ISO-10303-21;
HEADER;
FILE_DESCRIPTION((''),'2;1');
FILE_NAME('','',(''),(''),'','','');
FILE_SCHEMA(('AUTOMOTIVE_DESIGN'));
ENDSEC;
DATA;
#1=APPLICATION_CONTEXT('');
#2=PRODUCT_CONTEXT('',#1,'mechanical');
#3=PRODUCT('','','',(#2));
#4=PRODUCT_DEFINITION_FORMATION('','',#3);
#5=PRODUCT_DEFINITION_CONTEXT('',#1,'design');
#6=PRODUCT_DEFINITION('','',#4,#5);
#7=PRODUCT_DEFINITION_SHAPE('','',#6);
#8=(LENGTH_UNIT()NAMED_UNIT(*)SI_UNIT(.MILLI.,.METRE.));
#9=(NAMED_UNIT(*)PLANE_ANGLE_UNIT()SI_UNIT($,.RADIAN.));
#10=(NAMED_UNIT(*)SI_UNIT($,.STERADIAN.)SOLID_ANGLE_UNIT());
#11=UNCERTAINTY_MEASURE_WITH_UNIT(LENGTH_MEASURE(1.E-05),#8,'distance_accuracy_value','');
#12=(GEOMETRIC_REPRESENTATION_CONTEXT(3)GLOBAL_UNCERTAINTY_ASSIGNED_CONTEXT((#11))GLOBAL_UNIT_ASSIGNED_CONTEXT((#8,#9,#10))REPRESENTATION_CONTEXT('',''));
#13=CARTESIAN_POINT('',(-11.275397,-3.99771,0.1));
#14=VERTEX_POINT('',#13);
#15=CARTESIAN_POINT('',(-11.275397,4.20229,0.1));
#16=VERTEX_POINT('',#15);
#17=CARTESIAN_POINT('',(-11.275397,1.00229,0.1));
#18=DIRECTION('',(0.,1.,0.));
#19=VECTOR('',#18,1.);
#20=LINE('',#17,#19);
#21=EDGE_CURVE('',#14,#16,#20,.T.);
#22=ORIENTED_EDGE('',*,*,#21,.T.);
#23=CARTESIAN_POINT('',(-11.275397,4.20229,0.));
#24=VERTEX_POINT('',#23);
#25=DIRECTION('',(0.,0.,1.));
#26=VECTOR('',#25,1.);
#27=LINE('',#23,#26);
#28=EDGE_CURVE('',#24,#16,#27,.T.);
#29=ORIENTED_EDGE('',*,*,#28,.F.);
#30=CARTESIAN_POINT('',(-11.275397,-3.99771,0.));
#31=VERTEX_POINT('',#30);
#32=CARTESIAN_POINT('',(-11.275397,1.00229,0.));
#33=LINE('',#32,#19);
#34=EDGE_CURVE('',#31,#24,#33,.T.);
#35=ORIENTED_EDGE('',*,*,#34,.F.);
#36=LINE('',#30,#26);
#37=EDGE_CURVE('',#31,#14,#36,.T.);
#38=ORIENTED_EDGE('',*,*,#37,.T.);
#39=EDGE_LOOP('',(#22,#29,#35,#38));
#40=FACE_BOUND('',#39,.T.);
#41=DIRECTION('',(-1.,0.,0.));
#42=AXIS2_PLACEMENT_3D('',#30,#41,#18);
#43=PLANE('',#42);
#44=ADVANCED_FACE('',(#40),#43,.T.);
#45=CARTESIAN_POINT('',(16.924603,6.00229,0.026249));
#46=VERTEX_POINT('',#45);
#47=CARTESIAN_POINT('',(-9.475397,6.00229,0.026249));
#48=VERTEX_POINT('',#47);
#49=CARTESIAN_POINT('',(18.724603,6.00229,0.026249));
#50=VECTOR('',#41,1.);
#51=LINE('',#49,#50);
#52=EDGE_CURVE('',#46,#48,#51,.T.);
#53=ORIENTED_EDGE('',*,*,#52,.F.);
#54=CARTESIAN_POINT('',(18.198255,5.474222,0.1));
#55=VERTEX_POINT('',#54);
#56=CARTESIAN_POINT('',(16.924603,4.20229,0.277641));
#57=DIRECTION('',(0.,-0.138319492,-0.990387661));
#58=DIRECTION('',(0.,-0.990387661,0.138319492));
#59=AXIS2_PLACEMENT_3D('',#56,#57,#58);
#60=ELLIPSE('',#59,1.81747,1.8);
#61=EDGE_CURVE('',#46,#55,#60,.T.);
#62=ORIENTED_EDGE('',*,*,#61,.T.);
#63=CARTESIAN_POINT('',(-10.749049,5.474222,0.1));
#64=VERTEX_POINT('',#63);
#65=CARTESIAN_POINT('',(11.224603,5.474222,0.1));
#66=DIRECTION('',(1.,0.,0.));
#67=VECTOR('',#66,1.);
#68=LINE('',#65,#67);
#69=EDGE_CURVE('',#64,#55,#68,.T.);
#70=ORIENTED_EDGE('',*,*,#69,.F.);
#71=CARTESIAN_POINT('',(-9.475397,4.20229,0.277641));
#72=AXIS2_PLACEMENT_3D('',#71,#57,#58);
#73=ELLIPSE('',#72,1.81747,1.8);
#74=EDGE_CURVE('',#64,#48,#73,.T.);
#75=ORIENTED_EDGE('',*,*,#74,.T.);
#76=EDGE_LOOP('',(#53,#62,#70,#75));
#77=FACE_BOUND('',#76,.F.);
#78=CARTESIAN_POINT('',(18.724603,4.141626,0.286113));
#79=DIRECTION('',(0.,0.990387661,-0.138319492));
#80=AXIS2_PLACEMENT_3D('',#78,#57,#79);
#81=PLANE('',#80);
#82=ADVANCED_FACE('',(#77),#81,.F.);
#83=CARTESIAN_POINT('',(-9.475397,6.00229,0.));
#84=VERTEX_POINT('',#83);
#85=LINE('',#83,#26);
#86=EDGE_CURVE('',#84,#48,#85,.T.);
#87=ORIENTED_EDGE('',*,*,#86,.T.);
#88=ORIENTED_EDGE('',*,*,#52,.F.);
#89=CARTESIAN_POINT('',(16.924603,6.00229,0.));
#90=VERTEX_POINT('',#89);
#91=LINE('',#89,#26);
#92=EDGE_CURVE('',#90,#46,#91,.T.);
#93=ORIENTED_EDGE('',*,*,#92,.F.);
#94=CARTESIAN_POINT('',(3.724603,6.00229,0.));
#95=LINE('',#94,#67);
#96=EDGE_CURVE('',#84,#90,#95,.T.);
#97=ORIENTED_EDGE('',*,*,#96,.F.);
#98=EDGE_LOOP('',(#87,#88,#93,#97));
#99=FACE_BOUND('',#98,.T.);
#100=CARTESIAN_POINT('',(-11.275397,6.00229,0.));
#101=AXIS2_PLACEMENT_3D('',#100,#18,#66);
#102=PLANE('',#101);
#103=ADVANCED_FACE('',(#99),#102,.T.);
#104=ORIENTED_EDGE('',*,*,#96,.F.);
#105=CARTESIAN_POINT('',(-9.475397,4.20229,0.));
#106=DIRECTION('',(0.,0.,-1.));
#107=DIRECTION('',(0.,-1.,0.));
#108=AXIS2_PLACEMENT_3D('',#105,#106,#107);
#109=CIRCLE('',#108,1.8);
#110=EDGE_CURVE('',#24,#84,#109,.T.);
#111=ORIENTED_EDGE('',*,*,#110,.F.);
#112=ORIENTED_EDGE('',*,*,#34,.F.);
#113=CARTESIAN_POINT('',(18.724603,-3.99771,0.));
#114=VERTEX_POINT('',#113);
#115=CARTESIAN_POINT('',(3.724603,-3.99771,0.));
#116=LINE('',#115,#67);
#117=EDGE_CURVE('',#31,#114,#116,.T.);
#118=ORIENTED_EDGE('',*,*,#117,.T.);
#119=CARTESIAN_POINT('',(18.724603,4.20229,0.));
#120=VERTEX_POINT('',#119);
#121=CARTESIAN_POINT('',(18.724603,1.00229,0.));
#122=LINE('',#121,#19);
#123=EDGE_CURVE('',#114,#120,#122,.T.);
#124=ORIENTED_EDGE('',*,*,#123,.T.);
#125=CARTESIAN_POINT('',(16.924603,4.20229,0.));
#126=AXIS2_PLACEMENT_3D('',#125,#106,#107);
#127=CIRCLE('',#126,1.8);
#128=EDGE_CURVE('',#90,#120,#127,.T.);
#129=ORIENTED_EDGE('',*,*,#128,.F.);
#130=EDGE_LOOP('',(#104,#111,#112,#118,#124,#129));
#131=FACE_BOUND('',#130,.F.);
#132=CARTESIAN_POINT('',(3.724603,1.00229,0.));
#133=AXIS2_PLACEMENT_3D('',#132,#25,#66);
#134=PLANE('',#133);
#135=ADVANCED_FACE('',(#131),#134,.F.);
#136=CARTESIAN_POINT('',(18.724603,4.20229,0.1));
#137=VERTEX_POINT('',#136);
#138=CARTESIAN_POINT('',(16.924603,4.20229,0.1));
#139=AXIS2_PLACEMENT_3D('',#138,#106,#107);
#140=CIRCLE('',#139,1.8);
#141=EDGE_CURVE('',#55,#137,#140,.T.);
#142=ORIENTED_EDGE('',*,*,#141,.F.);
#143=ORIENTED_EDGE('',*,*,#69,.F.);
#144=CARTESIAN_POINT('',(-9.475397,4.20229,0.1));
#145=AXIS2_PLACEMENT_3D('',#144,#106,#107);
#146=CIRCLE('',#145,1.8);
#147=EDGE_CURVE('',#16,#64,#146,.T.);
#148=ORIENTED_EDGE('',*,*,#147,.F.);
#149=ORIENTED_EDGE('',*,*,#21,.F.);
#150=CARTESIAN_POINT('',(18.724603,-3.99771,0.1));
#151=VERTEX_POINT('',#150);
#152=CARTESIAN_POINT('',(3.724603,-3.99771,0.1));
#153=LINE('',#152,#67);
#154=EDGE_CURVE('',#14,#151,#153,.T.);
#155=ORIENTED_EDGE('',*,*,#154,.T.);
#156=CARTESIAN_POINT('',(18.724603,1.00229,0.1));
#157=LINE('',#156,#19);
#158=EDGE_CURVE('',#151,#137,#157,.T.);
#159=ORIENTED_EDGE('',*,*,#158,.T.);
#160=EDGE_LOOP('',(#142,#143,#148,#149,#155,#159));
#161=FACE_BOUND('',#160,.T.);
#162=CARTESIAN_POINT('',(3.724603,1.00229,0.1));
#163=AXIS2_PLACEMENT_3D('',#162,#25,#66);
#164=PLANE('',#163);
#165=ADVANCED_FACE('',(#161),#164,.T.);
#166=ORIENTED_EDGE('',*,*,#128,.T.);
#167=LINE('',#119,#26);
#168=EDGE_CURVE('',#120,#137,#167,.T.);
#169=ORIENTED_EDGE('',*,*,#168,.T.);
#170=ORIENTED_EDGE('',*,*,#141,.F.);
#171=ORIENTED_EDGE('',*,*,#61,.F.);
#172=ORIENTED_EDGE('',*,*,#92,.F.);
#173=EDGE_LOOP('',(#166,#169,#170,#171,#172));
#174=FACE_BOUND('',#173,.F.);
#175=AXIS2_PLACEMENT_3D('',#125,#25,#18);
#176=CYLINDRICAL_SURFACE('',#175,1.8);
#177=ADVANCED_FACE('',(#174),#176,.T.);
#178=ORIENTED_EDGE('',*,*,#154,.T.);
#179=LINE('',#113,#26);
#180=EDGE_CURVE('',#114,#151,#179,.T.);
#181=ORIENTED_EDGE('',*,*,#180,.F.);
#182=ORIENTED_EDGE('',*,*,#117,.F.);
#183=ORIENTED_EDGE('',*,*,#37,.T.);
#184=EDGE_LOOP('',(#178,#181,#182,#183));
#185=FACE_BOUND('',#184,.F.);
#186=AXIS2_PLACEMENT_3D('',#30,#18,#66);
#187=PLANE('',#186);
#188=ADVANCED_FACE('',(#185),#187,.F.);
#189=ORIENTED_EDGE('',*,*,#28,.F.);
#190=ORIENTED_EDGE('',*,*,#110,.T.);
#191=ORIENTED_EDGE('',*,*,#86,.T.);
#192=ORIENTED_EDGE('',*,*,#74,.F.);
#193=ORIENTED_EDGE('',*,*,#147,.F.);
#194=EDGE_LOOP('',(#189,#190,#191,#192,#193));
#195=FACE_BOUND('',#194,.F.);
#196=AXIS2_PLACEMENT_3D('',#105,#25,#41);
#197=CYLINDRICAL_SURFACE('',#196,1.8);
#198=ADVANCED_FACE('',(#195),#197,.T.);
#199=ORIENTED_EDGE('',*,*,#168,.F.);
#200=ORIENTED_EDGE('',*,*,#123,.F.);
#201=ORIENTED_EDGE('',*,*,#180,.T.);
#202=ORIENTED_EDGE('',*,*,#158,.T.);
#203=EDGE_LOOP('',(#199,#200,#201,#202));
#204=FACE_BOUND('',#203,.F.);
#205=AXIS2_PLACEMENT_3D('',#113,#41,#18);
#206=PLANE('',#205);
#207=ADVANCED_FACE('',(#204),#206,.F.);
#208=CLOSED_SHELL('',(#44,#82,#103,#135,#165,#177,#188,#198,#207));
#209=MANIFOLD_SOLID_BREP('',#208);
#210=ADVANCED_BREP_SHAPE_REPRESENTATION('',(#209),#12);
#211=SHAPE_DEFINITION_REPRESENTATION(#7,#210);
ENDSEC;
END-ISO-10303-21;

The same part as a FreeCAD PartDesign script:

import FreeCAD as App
import Part
import Sketcher

V = App.Vector
Q = App.Units.Quantity


def edges_at(feature, points):
    """Names of the edges that pass closest to the given points."""
    edges = feature.Shape.Edges
    near = lambda p: min(range(len(edges)), key=lambda i: edges[i].distToShape(Part.Vertex(*p))[0])
    return sorted({f"Edge{near(p) + 1}" for p in points})

doc = App.newDocument("Part")
body = doc.addObject("PartDesign::Body", "Body")

sketch1 = body.newObject("Sketcher::SketchObject", "Sketch")
sketch1.AttachmentSupport = (doc.getObject("XY_Plane"), [""])
sketch1.MapMode = "FlatFace"
sketch1.addGeometry(Part.LineSegment(V(-11, 6, 0), V(-11, -4, 0)), False)
sketch1.addGeometry(Part.LineSegment(V(-11, -4, 0), V(19, -4, 0)), False)
sketch1.addGeometry(Part.LineSegment(V(19, -4, 0), V(19, 6, 0)), False)
sketch1.addGeometry(Part.LineSegment(V(19, 6, 0), V(-11, 6, 0)), False)
sketch1.addConstraint(Sketcher.Constraint("Coincident", 0, 2, 1, 1))
sketch1.addConstraint(Sketcher.Constraint("Coincident", 1, 2, 2, 1))
sketch1.addConstraint(Sketcher.Constraint("Coincident", 2, 2, 3, 1))
sketch1.addConstraint(Sketcher.Constraint("Coincident", 3, 2, 0, 1))
sketch1.addConstraint(Sketcher.Constraint("Vertical", 0))
sketch1.addConstraint(Sketcher.Constraint("Horizontal", 1))
sketch1.addConstraint(Sketcher.Constraint("Vertical", 2))
sketch1.addConstraint(Sketcher.Constraint("Horizontal", 3))
sketch1.addConstraint(Sketcher.Constraint("DistanceX", 1, 1, 1, 2, Q("30 mm")))
sketch1.addConstraint(Sketcher.Constraint("DistanceY", 0, 2, 0, 1, Q("10 mm")))
sketch1.addConstraint(Sketcher.Constraint("DistanceY", 0, 2, -1, 1, Q("3.99771 mm")))
sketch1.addConstraint(Sketcher.Constraint("DistanceX", 0, 2, -1, 1, Q("11.275397 mm")))
pad1 = body.newObject("PartDesign::Pad", "Pad")
pad1.Profile = sketch1
pad1.Length = 0.1

sketch2 = body.newObject("Sketcher::SketchObject", "Sketch001")
sketch2.AttachmentSupport = (doc.getObject("YZ_Plane"), [""])
sketch2.MapMode = "FlatFace"
sketch2.AttachmentOffset = App.Placement(V(0, 0, 18.724603), App.Rotation())
sketch2.addGeometry(Part.LineSegment(V(4.142, 0.286, 0), V(6.002, 0.026, 0)), False)
sketch2.addGeometry(Part.LineSegment(V(6.002, 0.026, 0), V(6.01, 0.026, 0)), False)
sketch2.addGeometry(Part.LineSegment(V(6.01, 0.026, 0), V(7.014, 0.1, 0)), False)
sketch2.addGeometry(Part.LineSegment(V(7.014, 0.1, 0), V(6.508, 0.437, 0)), False)
sketch2.addGeometry(Part.LineSegment(V(6.508, 0.437, 0), V(4.142, 0.286, 0)), False)
sketch2.addConstraint(Sketcher.Constraint("Coincident", 0, 2, 1, 1))
sketch2.addConstraint(Sketcher.Constraint("Coincident", 1, 2, 2, 1))
sketch2.addConstraint(Sketcher.Constraint("Coincident", 2, 2, 3, 1))
sketch2.addConstraint(Sketcher.Constraint("Coincident", 3, 2, 4, 1))
sketch2.addConstraint(Sketcher.Constraint("Coincident", 4, 2, 0, 1))
sketch2.addConstraint(Sketcher.Constraint("DistanceY", -1, 1, 2, 2, Q("0.1 mm")))
sketch2.addConstraint(Sketcher.Constraint("Distance", 2, Q("1.00653 mm")))
sketch2.addConstraint(Sketcher.Constraint("DistanceX", -1, 1, 0, 2, Q("6.00229 mm")))
sketch2.addConstraint(Sketcher.Constraint("DistanceY", -1, 1, 0, 2, Q("0.026249 mm")))
sketch2.addConstraint(Sketcher.Constraint("DistanceY", -1, 1, 1, 2, Q("0.025722 mm")))
sketch2.addConstraint(Sketcher.Constraint("DistanceY", -1, 1, 3, 2, Q("0.436859 mm")))
sketch2.addConstraint(Sketcher.Constraint("DistanceX", 1, 2, 3, 2, Q("0.49847 mm")))
sketch2.addConstraint(Sketcher.Constraint("DistanceX", 4, 2, 1, 2, Q("1.868251 mm")))
sketch2.addConstraint(Sketcher.Constraint("DistanceY", 1, 2, 4, 2, Q("0.260391 mm")))
sketch2.addConstraint(Sketcher.Constraint("Distance", 0, Q("1.878723 mm")))
pocket1 = body.newObject("PartDesign::Pocket", "Pocket")
pocket1.Profile = sketch2
pocket1.Length = 57.2
doc.recompute()

fillet = body.newObject("PartDesign::Fillet", "Fillet")
fillet.Base = (pocket1, edges_at(pocket1, [(18.725, 6.002, 0.013), (-11.275, 6.002, 0.013)]))
fillet.Radius = 1.8

doc.recompute()
